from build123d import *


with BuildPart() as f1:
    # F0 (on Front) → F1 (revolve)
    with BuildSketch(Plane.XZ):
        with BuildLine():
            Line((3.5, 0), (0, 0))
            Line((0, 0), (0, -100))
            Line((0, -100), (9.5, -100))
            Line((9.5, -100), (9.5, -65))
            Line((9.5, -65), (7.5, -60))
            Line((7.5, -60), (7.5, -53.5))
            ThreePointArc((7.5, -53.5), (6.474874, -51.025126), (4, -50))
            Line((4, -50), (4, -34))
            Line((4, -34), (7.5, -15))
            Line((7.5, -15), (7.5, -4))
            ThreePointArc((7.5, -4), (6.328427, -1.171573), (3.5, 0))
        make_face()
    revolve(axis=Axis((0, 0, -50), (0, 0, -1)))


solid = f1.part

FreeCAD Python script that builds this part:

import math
import FreeCAD as App
import Part
import Sketcher

V = App.Vector

doc = App.newDocument("Part")
body = doc.addObject("PartDesign::Body", "Body")

sketch1 = doc.addObject("Sketcher::SketchObject", "Sketch")
body.addObject(sketch1)
sketch1.AttachmentSupport = (doc.XZ_Plane, [""])
sketch1.MapMode = "FlatFace"
sketch1.addGeometry([
    Part.LineSegment(V(3.5, 0, 0), V(0, 0, 0)),
    Part.LineSegment(V(0, 0, 0), V(0, -100, 0)),
    Part.LineSegment(V(0, -100, 0), V(9.5, -100, 0)),
    Part.LineSegment(V(9.5, -100, 0), V(9.5, -65, 0)),
    Part.LineSegment(V(9.5, -65, 0), V(7.5, -60, 0)),
    Part.LineSegment(V(7.5, -60, 0), V(7.5, -53.5, 0)),
    Part.ArcOfCircle(Part.Circle(V(4.000001, -53.499999, 0), V(0, 0, 1), 3.499999), math.radians(-0.000015), math.radians(90.000015)),
    Part.LineSegment(V(4, -50, 0), V(4, -34, 0)),
    Part.LineSegment(V(4, -34, 0), V(7.5, -15, 0)),
    Part.LineSegment(V(7.5, -15, 0), V(7.5, -4, 0)),
    Part.ArcOfCircle(Part.Circle(V(3.5, -4, 0), V(0, 0, 1), 4), math.radians(0.000006), math.radians(89.999994)),
], False)
sketch1.addConstraint([
    Sketcher.Constraint("Coincident", 0, 2, 1, 1),
    Sketcher.Constraint("Coincident", 1, 2, 2, 1),
    Sketcher.Constraint("Coincident", 2, 2, 3, 1),
    Sketcher.Constraint("Coincident", 3, 2, 4, 1),
    Sketcher.Constraint("Coincident", 4, 2, 5, 1),
    Sketcher.Constraint("Tangent", 5, 2, 6, 1),
    Sketcher.Constraint("Coincident", 6, 2, 7, 1),
    Sketcher.Constraint("Coincident", 7, 2, 8, 1),
    Sketcher.Constraint("Coincident", 8, 2, 9, 1),
    Sketcher.Constraint("Tangent", 9, 2, 10, 1),
    Sketcher.Constraint("Tangent", 10, 2, 0, 1),
    Sketcher.Constraint("Horizontal", 0),
    Sketcher.Constraint("Vertical", 1),
    Sketcher.Constraint("Horizontal", 2),
    Sketcher.Constraint("Vertical", 3),
    Sketcher.Constraint("Vertical", 5),
    Sketcher.Constraint("Vertical", 7),
    Sketcher.Constraint("Vertical", 9),
    Sketcher.Constraint("Coincident", 0, 2, -1, 1),
    Sketcher.Constraint("Vertical", 5, 2, 8, 2),
    Sketcher.Constraint("Radius", 10, 4.0),
    Sketcher.Constraint("Radius", 6, 3.499999),
    Sketcher.Constraint("DistanceY", 1, 2, 1, 1, 100.0),
    Sketcher.Constraint("DistanceY", 3, 1, 3, 2, 35.0),
    Sketcher.Constraint("DistanceY", 7, 1, 7, 2, 16.0),
    Sketcher.Constraint("DistanceY", 9, 1, 9, 2, 11.0),
    Sketcher.Constraint("DistanceX", 0, 2, 0, 1, 3.5),
    Sketcher.Constraint("DistanceX", 2, 1, 2, 2, 9.5),
    Sketcher.Constraint("DistanceY", 5, 1, 5, 2, 6.5),
    Sketcher.Constraint("DistanceY", 4, 2, -1, 1, 60.0),
    Sketcher.Constraint("DistanceX", -1, 1, 6, 2, 4.0),
])
revolution = doc.addObject("PartDesign::Revolution", "Revolution")
body.addObject(revolution)
revolution.Profile = sketch1
revolution.ReferenceAxis = (sketch1, ["V_Axis"])
revolution.Angle = 360

doc.recompute()
